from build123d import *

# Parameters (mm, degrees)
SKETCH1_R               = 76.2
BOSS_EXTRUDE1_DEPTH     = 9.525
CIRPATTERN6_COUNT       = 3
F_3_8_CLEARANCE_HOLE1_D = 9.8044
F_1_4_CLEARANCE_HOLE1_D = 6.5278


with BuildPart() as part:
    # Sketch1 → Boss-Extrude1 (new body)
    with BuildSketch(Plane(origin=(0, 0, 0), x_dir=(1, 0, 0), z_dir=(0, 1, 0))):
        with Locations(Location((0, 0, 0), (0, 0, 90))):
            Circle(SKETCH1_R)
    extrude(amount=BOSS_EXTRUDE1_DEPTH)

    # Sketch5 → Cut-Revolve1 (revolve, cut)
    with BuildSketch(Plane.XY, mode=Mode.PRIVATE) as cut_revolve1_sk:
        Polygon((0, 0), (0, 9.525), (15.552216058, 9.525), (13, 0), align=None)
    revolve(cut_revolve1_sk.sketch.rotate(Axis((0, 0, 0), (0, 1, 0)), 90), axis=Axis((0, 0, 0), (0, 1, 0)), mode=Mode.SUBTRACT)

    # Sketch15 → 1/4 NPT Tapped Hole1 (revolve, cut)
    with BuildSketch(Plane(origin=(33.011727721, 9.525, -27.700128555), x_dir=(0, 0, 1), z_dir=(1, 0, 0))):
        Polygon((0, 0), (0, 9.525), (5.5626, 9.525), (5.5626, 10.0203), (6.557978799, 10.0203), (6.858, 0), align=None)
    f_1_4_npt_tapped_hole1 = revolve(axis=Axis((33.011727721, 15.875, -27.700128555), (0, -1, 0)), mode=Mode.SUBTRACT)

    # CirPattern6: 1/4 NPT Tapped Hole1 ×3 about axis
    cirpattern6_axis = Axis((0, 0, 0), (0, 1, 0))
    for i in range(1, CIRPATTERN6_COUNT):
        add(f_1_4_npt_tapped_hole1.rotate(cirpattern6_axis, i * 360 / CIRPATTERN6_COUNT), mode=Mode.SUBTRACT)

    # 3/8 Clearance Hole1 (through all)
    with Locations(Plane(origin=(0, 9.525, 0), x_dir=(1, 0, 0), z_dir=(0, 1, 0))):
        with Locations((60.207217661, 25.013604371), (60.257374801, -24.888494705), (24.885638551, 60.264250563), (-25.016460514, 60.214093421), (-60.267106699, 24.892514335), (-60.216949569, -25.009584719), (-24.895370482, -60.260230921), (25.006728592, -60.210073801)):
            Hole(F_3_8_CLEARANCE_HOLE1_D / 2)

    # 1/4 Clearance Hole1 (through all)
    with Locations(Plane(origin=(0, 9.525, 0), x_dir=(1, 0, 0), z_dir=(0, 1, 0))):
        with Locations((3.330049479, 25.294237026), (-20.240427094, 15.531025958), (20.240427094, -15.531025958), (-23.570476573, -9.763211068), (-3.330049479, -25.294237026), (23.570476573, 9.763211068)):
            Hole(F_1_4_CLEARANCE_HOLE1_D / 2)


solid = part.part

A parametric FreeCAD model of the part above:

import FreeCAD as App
import Part
import Sketcher
from FreeCAD import Vector
Q = App.Units.Quantity

doc = App.newDocument("Part")
body = doc.addObject("PartDesign::Body", "Body")

sketch1 = body.newObject("Sketcher::SketchObject", "Sketch")
sketch1.AttachmentSupport = (doc.getObject("XZ_Plane"), [""])
sketch1.MapMode = "FlatFace"
sketch1.addGeometry(Part.Circle(Vector(0, 0, 0), Vector(0, 0, 1), 76), False)
sketch1.addConstraint([
    Sketcher.Constraint("Coincident", 0, 3, -1, 1),
    Sketcher.Constraint("Diameter", 0, Q("6 in")),
])
pad1 = body.newObject("PartDesign::Pad", "Pad")
pad1.Profile = sketch1
pad1.Length = Q("0.375 in")
pad1.Reversed = True

sketch2 = body.newObject("Sketcher::SketchObject", "Sketch001")
sketch2.AttachmentSupport = (doc.getObject("XY_Plane"), [""])
sketch2.MapMode = "FlatFace"
sketch2.addGeometry([
    Part.LineSegment(Vector(0, 10, 0), Vector(0, 0, 0)),
    Part.LineSegment(Vector(0, 0, 0), Vector(13, 0, 0)),
    Part.LineSegment(Vector(13, 0, 0), Vector(16, 10, 0)),
    Part.LineSegment(Vector(16, 10, 0), Vector(0, 10, 0)),
], False)
sketch2.addConstraint([
    Sketcher.Constraint("Coincident", 0, 2, 1, 1),
    Sketcher.Constraint("Coincident", 1, 2, 2, 1),
    Sketcher.Constraint("Coincident", 2, 2, 3, 1),
    Sketcher.Constraint("Coincident", 3, 2, 0, 1),
    Sketcher.Constraint("Vertical", 0),
    Sketcher.Constraint("Horizontal", 1),
    Sketcher.Constraint("Horizontal", 3),
    Sketcher.Constraint("Coincident", 0, 2, -1, 1),
    Sketcher.Constraint("Angle", 2, Q("75 deg")),
    Sketcher.Constraint("DistanceY", 0, 2, 0, 1, Q("0.375 in")),
    Sketcher.Constraint("DistanceX", 1, 1, 1, 2, 13.0),
])
groove = body.newObject("PartDesign::Groove", "Groove")
groove.Profile = sketch2
groove.ReferenceAxis = (sketch2, ["V_Axis"])
groove.Angle = 360

sketch3 = body.newObject("Sketcher::SketchObject", "Sketch002")
sketch3.AttachmentSupport = (doc.getObject("YZ_Plane"), [""])
sketch3.MapMode = "FlatFace"
sketch3.AttachmentOffset = App.Placement(Vector(0, 0, 33.011728), App.Rotation())
sketch3.addGeometry([
    Part.LineSegment(Vector(0, -27.7, 0), Vector(9.53, -27.7, 0)),
    Part.LineSegment(Vector(9.53, -27.7, 0), Vector(9.53, -20.84, 0)),
    Part.LineSegment(Vector(9.53, -20.84, 0), Vector(-0.5, -21.14, 0)),
    Part.LineSegment(Vector(-0.5, -21.14, 0), Vector(-0.5, -22.14, 0)),
    Part.LineSegment(Vector(-0.5, -22.14, 0), Vector(0, -22.14, 0)),
    Part.LineSegment(Vector(0, -22.14, 0), Vector(0, -27.7, 0)),
], False)
sketch3.addGeometry(Part.LineSegment(Vector(9.53, -27.7, 0), Vector(-0.5, -27.7, 0)), True)
sketch3.addConstraint([
    Sketcher.Constraint("Coincident", 0, 2, 1, 1),
    Sketcher.Constraint("Coincident", 1, 2, 2, 1),
    Sketcher.Constraint("Coincident", 2, 2, 3, 1),
    Sketcher.Constraint("Coincident", 3, 2, 4, 1),
    Sketcher.Constraint("Coincident", 4, 2, 5, 1),
    Sketcher.Constraint("Coincident", 5, 2, 0, 1),
    Sketcher.Constraint("Horizontal", 0),
    Sketcher.Constraint("Vertical", 1),
    Sketcher.Constraint("Vertical", 3),
    Sketcher.Constraint("Horizontal", 4),
    Sketcher.Constraint("Vertical", 5),
    Sketcher.Constraint("Horizontal", 6),
    Sketcher.Constraint("Coincident", 6, 1, 0, 2),
    Sketcher.Constraint("PointOnObject", 4, 2, -2),
    Sketcher.Constraint("Vertical", 3, 2, 6, 2),
    Sketcher.Constraint("DistanceY", 1, 1, 1, 2, Q("0.27 in")),
    Sketcher.Constraint("DistanceX", 0, 1, 0, 2, Q("0.375 in")),
    Sketcher.Constraint("DistanceY", 5, 2, 5, 1, Q("0.219 in")),
    Sketcher.Constraint("DistanceX", 4, 1, 4, 2, Q("0.0195 in")),
    Sketcher.Constraint("DistanceY", 3, 2, 3, 1, 0.995379),
    Sketcher.Constraint("DistanceY", 0, 2, -1, 1, 27.700129),
])
groove2 = body.newObject("PartDesign::Groove", "Groove001")
groove2.Profile = sketch3
groove2.ReferenceAxis = (sketch3, ["Axis0"])
groove2.Angle = 360
doc.recompute()

polarpattern = body.newObject("PartDesign::PolarPattern", "PolarPattern")
polarpattern.Originals = [groove2]
polarpattern.Axis = (doc.getObject("Y_Axis"), [""])
polarpattern.Angle = 360
polarpattern.Occurrences = 3
body.Tip = polarpattern

sketch4 = body.newObject("Sketcher::SketchObject", "Sketch003")
sketch4.AttachmentSupport = (doc.getObject("XZ_Plane"), [""])
sketch4.MapMode = "FlatFace"
sketch4.AttachmentOffset = App.Placement(Vector(0, 0, -0.375 * 25.4), App.Rotation())
sketch4.addGeometry([
    Part.Circle(Vector(60.2, -25, 0), Vector(0, 0, 1), 4.9),
    Part.Circle(Vector(60.3, 24.9, 0), Vector(0, 0, 1), 4.9),
    Part.Circle(Vector(24.9, -60.3, 0), Vector(0, 0, 1), 4.9),
    Part.Circle(Vector(-25, -60.2, 0), Vector(0, 0, 1), 4.9),
    Part.Circle(Vector(-60.3, -24.9, 0), Vector(0, 0, 1), 4.9),
    Part.Circle(Vector(-60.2, 25, 0), Vector(0, 0, 1), 4.9),
    Part.Circle(Vector(-24.9, 60.3, 0), Vector(0, 0, 1), 4.9),
    Part.Circle(Vector(25, 60.2, 0), Vector(0, 0, 1), 4.9),
], False)
sketch4.addConstraint([
    Sketcher.Constraint("Equal", 0, 1),
    Sketcher.Constraint("Equal", 1, 2),
    Sketcher.Constraint("Equal", 2, 3),
    Sketcher.Constraint("Equal", 3, 4),
    Sketcher.Constraint("Equal", 4, 5),
    Sketcher.Constraint("Equal", 5, 6),
    Sketcher.Constraint("Equal", 6, 7),
    Sketcher.Constraint("Diameter", 0, Q("0.386 in")),
    Sketcher.Constraint("DistanceX", 3, 3, -1, 1, Q("0.9849 in")),
    Sketcher.Constraint("DistanceY", 0, 3, 1, 3, 49.902099),
    Sketcher.Constraint("DistanceX", 3, 3, 2, 3, 49.902099),
    Sketcher.Constraint("DistanceY", 4, 3, 5, 3, 49.902099),
    Sketcher.Constraint("DistanceX", 6, 3, 7, 3, 49.902099),
    Sketcher.Constraint("DistanceY", 2, 3, -1, 1, 60.264251),
    Sketcher.Constraint("DistanceX", 5, 3, -1, 1, 60.21695),
    Sketcher.Constraint("DistanceX", 6, 3, -1, 1, 24.89537),
    Sketcher.Constraint("DistanceY", -1, 1, 6, 3, 60.260231),
    Sketcher.Constraint("DistanceX", 2, 3, 0, 3, 35.321579),
    Sketcher.Constraint("DistanceY", 3, 3, 0, 3, 35.200489),
    Sketcher.Constraint("DistanceY", 3, 3, 4, 3, 35.321579),
    Sketcher.Constraint("DistanceX", 4, 3, 1, 3, 120.524482),
    Sketcher.Constraint("DistanceY", 1, 3, 7, 3, 35.321579),
    Sketcher.Constraint("DistanceY", 0, 3, -1, 1, 25.013604),
    Sketcher.Constraint("DistanceX", -1, 1, 1, 3, 60.257375),
])
doc.recompute()
hole = body.newObject("PartDesign::Hole", "Hole")
hole.Profile = sketch4
hole.ThreadType = "None"
hole.Diameter = Q("0.386 in")
hole.DepthType = "ThroughAll"
hole.Reversed = True

sketch5 = body.newObject("Sketcher::SketchObject", "Sketch004")
sketch5.AttachmentSupport = (doc.getObject("XZ_Plane"), [""])
sketch5.MapMode = "FlatFace"
sketch5.AttachmentOffset = App.Placement(Vector(0, 0, -0.375 * 25.4), App.Rotation())
sketch5.addGeometry([
    Part.Circle(Vector(3.3, -25.3, 0), Vector(0, 0, 1), 3.3),
    Part.Circle(Vector(-20.2, -15.5, 0), Vector(0, 0, 1), 3.3),
    Part.Circle(Vector(20.2, 15.5, 0), Vector(0, 0, 1), 3.3),
    Part.Circle(Vector(-23.6, 9.8, 0), Vector(0, 0, 1), 3.3),
    Part.Circle(Vector(-3.3, 25.3, 0), Vector(0, 0, 1), 3.3),
    Part.Circle(Vector(23.6, -9.8, 0), Vector(0, 0, 1), 3.3),
], False)
sketch5.addConstraint([
    Sketcher.Constraint("Equal", 0, 1),
    Sketcher.Constraint("Equal", 1, 2),
    Sketcher.Constraint("Equal", 2, 3),
    Sketcher.Constraint("Equal", 3, 4),
    Sketcher.Constraint("Equal", 4, 5),
    Sketcher.Constraint("Symmetric", 1, 3, 2, 3, -1, 1),
    Sketcher.Constraint("Symmetric", 0, 3, 4, 3, -1, 1),
    Sketcher.Constraint("Symmetric", 3, 3, 5, 3, -1, 1),
    Sketcher.Constraint("Diameter", 0, Q("0.257 in")),
    Sketcher.Constraint("DistanceX", 4, 3, 0, 3, 6.660099),
    Sketcher.Constraint("DistanceY", -1, 1, 3, 3, 9.763211),
    Sketcher.Constraint("DistanceY", 0, 3, 1, 3, 9.763211),
    Sketcher.Constraint("DistanceY", 1, 3, 2, 3, 31.062052),
    Sketcher.Constraint("DistanceX", 3, 3, 1, 3, 3.330049),
    Sketcher.Constraint("DistanceX", 1, 3, -1, 1, 20.240427),
])
doc.recompute()
hole2 = body.newObject("PartDesign::Hole", "Hole001")
hole2.Profile = sketch5
hole2.ThreadType = "None"
hole2.Diameter = Q("0.257 in")
hole2.DepthType = "ThroughAll"
hole2.Reversed = True

doc.recompute()
